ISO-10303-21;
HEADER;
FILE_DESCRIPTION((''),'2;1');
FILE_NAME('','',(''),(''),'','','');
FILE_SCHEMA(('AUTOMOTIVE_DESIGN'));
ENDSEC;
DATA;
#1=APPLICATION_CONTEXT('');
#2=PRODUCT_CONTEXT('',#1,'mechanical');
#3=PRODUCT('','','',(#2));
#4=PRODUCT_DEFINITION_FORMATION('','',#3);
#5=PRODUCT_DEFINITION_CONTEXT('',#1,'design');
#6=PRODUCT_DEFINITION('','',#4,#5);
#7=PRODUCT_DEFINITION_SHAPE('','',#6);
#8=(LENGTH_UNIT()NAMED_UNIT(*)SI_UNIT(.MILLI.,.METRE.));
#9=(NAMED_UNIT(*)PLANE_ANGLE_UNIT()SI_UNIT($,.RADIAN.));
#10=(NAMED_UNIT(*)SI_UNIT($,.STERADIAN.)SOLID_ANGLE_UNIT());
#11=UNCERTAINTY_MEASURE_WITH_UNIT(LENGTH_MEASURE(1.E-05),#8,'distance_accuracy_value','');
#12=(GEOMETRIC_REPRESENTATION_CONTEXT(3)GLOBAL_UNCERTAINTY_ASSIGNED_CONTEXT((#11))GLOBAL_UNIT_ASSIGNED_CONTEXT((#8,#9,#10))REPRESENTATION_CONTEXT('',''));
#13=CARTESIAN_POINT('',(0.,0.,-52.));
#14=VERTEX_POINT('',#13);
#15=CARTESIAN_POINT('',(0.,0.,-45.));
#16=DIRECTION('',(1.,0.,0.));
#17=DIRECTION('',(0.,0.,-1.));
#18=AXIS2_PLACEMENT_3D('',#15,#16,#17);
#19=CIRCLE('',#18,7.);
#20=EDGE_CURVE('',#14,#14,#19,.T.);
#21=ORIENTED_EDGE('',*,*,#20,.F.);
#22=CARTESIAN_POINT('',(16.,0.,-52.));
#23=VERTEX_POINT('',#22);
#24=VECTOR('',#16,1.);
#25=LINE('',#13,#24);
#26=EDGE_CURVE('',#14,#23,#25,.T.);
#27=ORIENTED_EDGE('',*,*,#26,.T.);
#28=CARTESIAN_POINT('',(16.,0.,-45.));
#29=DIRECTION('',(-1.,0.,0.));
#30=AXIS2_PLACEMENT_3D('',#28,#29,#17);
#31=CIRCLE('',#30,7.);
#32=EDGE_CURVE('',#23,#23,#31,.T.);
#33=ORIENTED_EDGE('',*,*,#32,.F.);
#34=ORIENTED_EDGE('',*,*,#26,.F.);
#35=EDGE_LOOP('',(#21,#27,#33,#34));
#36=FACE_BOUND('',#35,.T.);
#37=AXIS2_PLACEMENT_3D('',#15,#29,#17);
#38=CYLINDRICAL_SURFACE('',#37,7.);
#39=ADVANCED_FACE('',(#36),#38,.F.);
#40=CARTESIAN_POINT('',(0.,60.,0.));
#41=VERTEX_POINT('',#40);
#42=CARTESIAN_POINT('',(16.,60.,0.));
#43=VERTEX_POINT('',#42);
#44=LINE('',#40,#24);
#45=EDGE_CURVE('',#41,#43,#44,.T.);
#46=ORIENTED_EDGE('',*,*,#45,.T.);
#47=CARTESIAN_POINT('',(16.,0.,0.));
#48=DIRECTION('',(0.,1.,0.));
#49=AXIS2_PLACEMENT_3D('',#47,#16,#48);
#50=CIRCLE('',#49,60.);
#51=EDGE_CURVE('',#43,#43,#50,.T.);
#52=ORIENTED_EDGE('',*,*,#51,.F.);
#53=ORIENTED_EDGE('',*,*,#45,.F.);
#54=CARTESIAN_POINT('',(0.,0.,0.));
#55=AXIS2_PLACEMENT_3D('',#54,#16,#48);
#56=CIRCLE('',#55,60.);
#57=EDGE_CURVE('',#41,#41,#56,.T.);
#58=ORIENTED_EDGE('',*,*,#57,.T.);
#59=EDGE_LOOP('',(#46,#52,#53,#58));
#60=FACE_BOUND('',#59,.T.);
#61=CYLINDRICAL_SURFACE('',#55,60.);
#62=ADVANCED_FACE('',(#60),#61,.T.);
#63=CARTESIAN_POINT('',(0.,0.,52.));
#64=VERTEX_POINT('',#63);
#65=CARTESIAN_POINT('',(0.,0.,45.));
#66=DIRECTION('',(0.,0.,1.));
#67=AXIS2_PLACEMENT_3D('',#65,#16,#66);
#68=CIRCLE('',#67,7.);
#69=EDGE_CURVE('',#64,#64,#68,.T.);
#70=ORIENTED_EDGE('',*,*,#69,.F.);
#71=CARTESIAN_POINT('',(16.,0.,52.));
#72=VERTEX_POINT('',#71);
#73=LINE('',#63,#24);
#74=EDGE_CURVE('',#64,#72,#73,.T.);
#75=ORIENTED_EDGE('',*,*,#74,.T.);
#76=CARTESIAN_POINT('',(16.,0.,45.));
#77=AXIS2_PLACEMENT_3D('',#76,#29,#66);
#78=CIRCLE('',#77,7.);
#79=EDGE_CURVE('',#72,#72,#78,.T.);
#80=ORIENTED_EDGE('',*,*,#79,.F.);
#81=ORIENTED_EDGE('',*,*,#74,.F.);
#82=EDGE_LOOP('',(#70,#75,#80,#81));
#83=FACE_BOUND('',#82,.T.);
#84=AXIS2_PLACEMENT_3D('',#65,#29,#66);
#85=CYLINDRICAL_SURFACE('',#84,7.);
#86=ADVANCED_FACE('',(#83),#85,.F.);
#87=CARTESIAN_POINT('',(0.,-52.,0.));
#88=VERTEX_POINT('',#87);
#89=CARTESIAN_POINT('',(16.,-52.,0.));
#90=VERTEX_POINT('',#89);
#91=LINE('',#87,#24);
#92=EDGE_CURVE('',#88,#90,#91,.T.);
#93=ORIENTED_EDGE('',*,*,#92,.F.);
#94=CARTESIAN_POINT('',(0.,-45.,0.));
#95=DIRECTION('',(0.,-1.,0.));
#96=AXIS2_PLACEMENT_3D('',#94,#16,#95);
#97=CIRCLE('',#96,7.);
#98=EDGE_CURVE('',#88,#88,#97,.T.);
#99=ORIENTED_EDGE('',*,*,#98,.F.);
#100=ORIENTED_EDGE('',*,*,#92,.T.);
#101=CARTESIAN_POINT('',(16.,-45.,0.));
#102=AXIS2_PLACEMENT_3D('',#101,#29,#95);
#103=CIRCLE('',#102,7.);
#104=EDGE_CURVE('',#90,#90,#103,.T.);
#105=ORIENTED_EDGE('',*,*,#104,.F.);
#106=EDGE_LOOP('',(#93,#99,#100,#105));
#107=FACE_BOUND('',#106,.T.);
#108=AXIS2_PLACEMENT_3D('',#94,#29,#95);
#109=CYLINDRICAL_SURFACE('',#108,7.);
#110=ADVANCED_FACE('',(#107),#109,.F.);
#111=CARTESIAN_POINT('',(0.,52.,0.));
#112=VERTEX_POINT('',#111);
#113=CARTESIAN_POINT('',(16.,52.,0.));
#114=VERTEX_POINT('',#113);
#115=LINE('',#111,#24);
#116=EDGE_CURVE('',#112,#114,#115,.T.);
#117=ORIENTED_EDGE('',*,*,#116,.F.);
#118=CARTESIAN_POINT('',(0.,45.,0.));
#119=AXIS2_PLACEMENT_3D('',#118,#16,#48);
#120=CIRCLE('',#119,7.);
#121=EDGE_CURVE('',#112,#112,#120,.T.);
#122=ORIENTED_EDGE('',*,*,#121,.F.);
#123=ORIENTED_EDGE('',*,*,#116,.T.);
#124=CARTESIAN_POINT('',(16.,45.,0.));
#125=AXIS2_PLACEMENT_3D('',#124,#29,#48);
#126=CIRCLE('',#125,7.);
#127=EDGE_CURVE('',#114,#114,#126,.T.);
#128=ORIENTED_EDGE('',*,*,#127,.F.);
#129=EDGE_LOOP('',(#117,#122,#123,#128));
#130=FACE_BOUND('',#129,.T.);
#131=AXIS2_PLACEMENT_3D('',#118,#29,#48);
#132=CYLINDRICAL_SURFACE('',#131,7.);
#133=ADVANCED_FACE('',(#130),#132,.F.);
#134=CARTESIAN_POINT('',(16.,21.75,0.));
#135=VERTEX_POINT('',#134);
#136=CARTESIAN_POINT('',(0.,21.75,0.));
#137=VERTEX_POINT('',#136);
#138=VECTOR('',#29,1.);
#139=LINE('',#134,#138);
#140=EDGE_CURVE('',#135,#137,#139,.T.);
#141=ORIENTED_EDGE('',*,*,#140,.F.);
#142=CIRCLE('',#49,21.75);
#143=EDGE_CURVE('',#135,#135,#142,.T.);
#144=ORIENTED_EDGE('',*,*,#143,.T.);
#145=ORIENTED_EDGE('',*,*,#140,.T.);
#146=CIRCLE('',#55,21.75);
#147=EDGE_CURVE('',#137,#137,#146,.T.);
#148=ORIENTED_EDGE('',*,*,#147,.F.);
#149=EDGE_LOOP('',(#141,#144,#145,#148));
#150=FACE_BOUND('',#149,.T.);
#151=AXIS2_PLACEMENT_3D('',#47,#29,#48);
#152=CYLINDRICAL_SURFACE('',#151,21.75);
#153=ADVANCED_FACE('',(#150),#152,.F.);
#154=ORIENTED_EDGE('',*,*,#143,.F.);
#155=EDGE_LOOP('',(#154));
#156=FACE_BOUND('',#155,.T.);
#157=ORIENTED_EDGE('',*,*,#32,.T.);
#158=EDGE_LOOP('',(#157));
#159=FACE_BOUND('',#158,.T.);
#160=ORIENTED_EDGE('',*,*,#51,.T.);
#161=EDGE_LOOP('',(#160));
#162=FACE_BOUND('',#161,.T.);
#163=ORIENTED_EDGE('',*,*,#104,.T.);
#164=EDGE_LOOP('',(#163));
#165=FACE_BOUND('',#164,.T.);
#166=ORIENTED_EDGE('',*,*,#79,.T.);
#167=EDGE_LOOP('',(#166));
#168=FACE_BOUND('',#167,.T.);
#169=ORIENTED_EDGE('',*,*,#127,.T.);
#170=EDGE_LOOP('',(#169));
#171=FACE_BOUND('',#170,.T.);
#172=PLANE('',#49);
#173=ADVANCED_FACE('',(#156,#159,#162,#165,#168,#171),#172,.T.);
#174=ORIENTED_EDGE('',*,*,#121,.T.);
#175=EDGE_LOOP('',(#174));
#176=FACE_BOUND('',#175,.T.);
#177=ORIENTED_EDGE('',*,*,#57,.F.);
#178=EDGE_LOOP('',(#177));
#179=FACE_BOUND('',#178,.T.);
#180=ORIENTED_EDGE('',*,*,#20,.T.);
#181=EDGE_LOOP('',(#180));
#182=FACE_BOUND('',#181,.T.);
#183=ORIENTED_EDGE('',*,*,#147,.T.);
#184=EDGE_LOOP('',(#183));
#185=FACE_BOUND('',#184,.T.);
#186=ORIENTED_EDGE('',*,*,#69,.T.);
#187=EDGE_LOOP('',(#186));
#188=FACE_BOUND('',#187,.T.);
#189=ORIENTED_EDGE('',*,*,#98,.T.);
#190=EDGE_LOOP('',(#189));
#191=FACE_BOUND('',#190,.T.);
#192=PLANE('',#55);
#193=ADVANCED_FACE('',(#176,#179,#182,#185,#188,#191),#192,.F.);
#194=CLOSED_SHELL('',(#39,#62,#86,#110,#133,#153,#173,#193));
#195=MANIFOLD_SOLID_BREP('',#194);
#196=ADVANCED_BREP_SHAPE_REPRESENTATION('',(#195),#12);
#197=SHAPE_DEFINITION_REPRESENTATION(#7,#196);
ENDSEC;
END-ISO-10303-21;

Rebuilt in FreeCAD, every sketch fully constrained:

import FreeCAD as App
import Part
import Sketcher
Q = App.Units.Quantity


def add_polygon(sketch, points):
    """Adds a closed chain of lines whose ends are joined by coincident constraints."""
    first, n = sketch.GeometryCount, len(points)
    for a, b in zip(points, points[1:] + points[:1]):
        sketch.addGeometry(Part.LineSegment(App.Vector(*a, 0), App.Vector(*b, 0)), False)
    for i in range(n):
        sketch.addConstraint(Sketcher.Constraint("Coincident", first + i, 2, first + (i + 1) % n, 1))

doc = App.newDocument("Part")
body = doc.addObject("PartDesign::Body", "Body")

# Sketch on XY plane
sketch1 = body.newObject("Sketcher::SketchObject", "Sketch")
sketch1.AttachmentSupport = (doc.getObject("XY_Plane"), [""])
sketch1.MapMode = "FlatFace"
add_polygon(sketch1, [(16, 60), (0, 60), (0, 22), (16, 22)])  # lines 0-3
sketch1.addConstraint([
    Sketcher.Constraint("Horizontal", 0),
    Sketcher.Constraint("Vertical", 1),
    Sketcher.Constraint("Horizontal", 2),
    Sketcher.Constraint("Vertical", 3),
    Sketcher.Constraint("PointOnObject", 0, 2, -2),
    Sketcher.Constraint("DistanceX", 0, 2, 0, 1, Q("16 mm")),
    Sketcher.Constraint("DistanceY", 1, 2, 1, 1, Q("38.25 mm")),
    Sketcher.Constraint("DistanceY", -1, 1, 0, 2, Q("60 mm")),
])
revolution = body.newObject("PartDesign::Revolution", "Revolution")
revolution.Profile = sketch1
revolution.ReferenceAxis = (sketch1, ["H_Axis"])
revolution.Angle = 360

# Sketch on YZ plane
sketch2 = body.newObject("Sketcher::SketchObject", "Sketch001")
sketch2.AttachmentSupport = (doc.getObject("YZ_Plane"), [""])
sketch2.MapMode = "FlatFace"
sketch2.addGeometry(Part.Circle(App.Vector(45, 0, 0), App.Vector(0, 0, 1), 7), False)
sketch2.addConstraint([
    Sketcher.Constraint("PointOnObject", 0, 3, -1),
    Sketcher.Constraint("Diameter", 0, Q("14 mm")),
    Sketcher.Constraint("DistanceX", -1, 1, 0, 3, Q("45 mm")),
])
pocket1 = body.newObject("PartDesign::Pocket", "Pocket")
pocket1.Profile = sketch2
pocket1.Type = "ThroughAll"
pocket1.Reversed = True
doc.recompute()

polarpattern = body.newObject("PartDesign::PolarPattern", "PolarPattern")
polarpattern.Originals = [pocket1]
polarpattern.Axis = (doc.getObject("X_Axis"), [""])
polarpattern.Angle = 360
polarpattern.Occurrences = 4
body.Tip = polarpattern

doc.recompute()
